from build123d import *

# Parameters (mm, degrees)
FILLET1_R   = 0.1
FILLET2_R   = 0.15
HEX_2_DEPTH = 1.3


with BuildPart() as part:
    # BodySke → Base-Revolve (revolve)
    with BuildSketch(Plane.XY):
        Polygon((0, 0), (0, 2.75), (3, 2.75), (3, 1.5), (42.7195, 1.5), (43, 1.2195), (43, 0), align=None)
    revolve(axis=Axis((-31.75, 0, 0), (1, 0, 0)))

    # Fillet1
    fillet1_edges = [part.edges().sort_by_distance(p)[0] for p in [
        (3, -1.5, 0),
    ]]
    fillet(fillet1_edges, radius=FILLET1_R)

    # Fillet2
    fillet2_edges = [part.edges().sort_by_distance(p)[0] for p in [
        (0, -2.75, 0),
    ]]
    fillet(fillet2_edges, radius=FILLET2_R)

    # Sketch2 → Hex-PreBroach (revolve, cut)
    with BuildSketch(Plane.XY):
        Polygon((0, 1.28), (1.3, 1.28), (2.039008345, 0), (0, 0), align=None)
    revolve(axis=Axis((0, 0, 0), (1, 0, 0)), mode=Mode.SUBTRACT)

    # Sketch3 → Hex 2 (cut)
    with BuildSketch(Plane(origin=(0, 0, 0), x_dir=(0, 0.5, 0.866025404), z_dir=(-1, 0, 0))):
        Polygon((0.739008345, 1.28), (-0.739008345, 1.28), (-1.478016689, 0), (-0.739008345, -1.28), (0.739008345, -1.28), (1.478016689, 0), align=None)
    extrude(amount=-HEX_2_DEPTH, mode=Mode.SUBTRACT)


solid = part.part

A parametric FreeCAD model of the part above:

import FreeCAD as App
import Part
import Sketcher

V = App.Vector
Q = App.Units.Quantity


def edges_at(feature, points):
    """Names of the edges that pass closest to the given points."""
    edges = feature.Shape.Edges
    near = lambda p: min(range(len(edges)), key=lambda i: edges[i].distToShape(Part.Vertex(*p))[0])
    return sorted({f"Edge{near(p) + 1}" for p in points})


def add_polygon(sketch, points):
    """Adds a closed chain of lines whose ends are joined by coincident constraints."""
    first, n = sketch.GeometryCount, len(points)
    for a, b in zip(points, points[1:] + points[:1]):
        sketch.addGeometry(Part.LineSegment(App.Vector(*a, 0), App.Vector(*b, 0)), False)
    for i in range(n):
        sketch.addConstraint(Sketcher.Constraint("Coincident", first + i, 2, first + (i + 1) % n, 1))

doc = App.newDocument("Part")
body = doc.addObject("PartDesign::Body", "Body")

sketch1 = doc.addObject("Sketcher::SketchObject", "Sketch")
body.addObject(sketch1)
sketch1.AttachmentSupport = (doc.XY_Plane, [""])
sketch1.MapMode = "FlatFace"
add_polygon(sketch1, [(0, 2.75), (0, 0), (43, 0), (43, 1.22), (42.72, 1.5), (3, 1.5), (3, 2.75)])
sketch1.addConstraint(Sketcher.Constraint("Vertical", 0))
sketch1.addConstraint(Sketcher.Constraint("Horizontal", 1))
sketch1.addConstraint(Sketcher.Constraint("Vertical", 2))
sketch1.addConstraint(Sketcher.Constraint("Horizontal", 4))
sketch1.addConstraint(Sketcher.Constraint("Vertical", 5))
sketch1.addConstraint(Sketcher.Constraint("Horizontal", 6))
sketch1.addConstraint(Sketcher.Constraint("Coincident", 0, 2, -1, 1))
sketch1.addConstraint(Sketcher.Constraint("DistanceX", 1, 1, 1, 2, 43.0))
sketch1.addConstraint(Sketcher.Constraint("DistanceX", 6, 2, 6, 1, 3.0))
sketch1.addConstraint(Sketcher.Constraint("Angle", 3, Q("135 deg")))
sketch1.addConstraint(Sketcher.Constraint("DistanceY", 0, 2, 0, 1, 2.75))
sketch1.addConstraint(Sketcher.Constraint("DistanceY", 5, 1, 5, 2, 1.25))
sketch1.addConstraint(Sketcher.Constraint("DistanceX", 4, 2, 4, 1, 39.7195))
revolution = doc.addObject("PartDesign::Revolution", "Revolution")
body.addObject(revolution)
revolution.Profile = sketch1
revolution.ReferenceAxis = (sketch1, ["H_Axis"])
revolution.Angle = 360
doc.recompute()

fillet = doc.addObject("PartDesign::Fillet", "Fillet")
body.addObject(fillet)
fillet.Base = (revolution, edges_at(revolution, [(3, -1.5, 0)]))
fillet.Radius = 0.1
doc.recompute()

fillet2 = doc.addObject("PartDesign::Fillet", "Fillet001")
body.addObject(fillet2)
fillet2.Base = (fillet, edges_at(fillet, [(0, -2.75, 0)]))
fillet2.Radius = 0.15

sketch2 = doc.addObject("Sketcher::SketchObject", "Sketch001")
body.addObject(sketch2)
sketch2.AttachmentSupport = (doc.XY_Plane, [""])
sketch2.MapMode = "FlatFace"
add_polygon(sketch2, [(1.3, 1.3), (0, 1.3), (0, 0), (2, 0)])
sketch2.addConstraint(Sketcher.Constraint("Horizontal", 0))
sketch2.addConstraint(Sketcher.Constraint("Vertical", 1))
sketch2.addConstraint(Sketcher.Constraint("Horizontal", 2))
sketch2.addConstraint(Sketcher.Constraint("Coincident", 1, 2, -1, 1))
sketch2.addConstraint(Sketcher.Constraint("Angle", 3, Q("120 deg")))
sketch2.addConstraint(Sketcher.Constraint("DistanceX", 0, 2, 0, 1, 1.3))
sketch2.addConstraint(Sketcher.Constraint("DistanceY", 1, 2, 1, 1, 1.28))
groove = doc.addObject("PartDesign::Groove", "Groove")
body.addObject(groove)
groove.Profile = sketch2
groove.ReferenceAxis = (sketch2, ["H_Axis"])
groove.Angle = 360

sketch3 = doc.addObject("Sketcher::SketchObject", "Sketch002")
body.addObject(sketch3)
sketch3.AttachmentSupport = (doc.YZ_Plane, [""])
sketch3.MapMode = "FlatFace"
add_polygon(sketch3, [(1.5, 0), (0.7, -1.3), (-0.7, -1.3), (-1.5, 0), (-0.7, 1.3), (0.7, 1.3)])
sketch3.addConstraint(Sketcher.Constraint("Horizontal", 1))
sketch3.addConstraint(Sketcher.Constraint("Horizontal", 4))
sketch3.addConstraint(Sketcher.Constraint("Symmetric", 0, 2, 3, 2, -1, 1))
sketch3.addConstraint(Sketcher.Constraint("Symmetric", 2, 2, 5, 2, -1, 1))
sketch3.addConstraint(Sketcher.Constraint("PointOnObject", 2, 2, -1))
sketch3.addConstraint(Sketcher.Constraint("Parallel", 2, 5))
sketch3.addConstraint(Sketcher.Constraint("Vertical", 1, 2, 3, 2))
sketch3.addConstraint(Sketcher.Constraint("Angle", 0, Q("-120 deg")))
sketch3.addConstraint(Sketcher.Constraint("DistanceY", 0, 2, -1, 1, 1.28))
sketch3.addConstraint(Sketcher.Constraint("DistanceX", 1, 2, 1, 1, 1.478017))
pocket1 = doc.addObject("PartDesign::Pocket", "Pocket")
body.addObject(pocket1)
pocket1.Profile = sketch3
pocket1.Length = 1.3
pocket1.Reversed = True

doc.recompute()
